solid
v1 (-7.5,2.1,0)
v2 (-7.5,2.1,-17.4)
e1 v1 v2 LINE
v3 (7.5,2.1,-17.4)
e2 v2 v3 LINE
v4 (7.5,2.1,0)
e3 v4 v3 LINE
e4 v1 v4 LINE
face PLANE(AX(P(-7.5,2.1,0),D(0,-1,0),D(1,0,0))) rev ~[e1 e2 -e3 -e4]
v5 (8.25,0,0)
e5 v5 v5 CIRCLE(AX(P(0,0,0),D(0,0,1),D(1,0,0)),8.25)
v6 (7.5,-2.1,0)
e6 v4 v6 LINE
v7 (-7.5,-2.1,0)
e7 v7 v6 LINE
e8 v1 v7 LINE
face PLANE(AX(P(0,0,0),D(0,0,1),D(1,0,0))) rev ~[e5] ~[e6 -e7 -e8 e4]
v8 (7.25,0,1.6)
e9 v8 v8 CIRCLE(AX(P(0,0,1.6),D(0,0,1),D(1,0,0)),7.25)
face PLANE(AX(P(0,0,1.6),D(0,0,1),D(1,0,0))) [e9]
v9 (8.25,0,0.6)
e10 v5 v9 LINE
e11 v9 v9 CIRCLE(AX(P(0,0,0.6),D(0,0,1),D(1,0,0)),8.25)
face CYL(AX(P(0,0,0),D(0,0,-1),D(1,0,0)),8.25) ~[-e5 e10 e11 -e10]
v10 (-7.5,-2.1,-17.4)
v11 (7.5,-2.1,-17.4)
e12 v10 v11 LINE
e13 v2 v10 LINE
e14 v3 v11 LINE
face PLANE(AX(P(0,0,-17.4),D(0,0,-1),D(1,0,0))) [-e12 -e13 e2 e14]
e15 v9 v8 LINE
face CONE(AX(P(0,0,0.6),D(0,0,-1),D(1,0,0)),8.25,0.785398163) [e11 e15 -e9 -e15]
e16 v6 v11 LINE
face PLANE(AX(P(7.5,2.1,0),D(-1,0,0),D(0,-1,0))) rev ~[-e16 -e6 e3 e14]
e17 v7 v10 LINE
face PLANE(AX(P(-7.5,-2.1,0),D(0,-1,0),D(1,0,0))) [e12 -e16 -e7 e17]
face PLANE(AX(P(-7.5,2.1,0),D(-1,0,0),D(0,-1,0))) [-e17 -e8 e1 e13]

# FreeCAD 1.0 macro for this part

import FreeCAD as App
import Part
import Sketcher


def edges_at(feature, points):
    """Names of the edges that pass closest to the given points."""
    edges = feature.Shape.Edges
    near = lambda p: min(range(len(edges)), key=lambda i: edges[i].distToShape(Part.Vertex(*p))[0])
    return sorted({f"Edge{near(p) + 1}" for p in points})

doc = App.newDocument("Part")
body = doc.addObject("PartDesign::Body", "Body")

# Sketch on XY plane
sketch1 = body.newObject("Sketcher::SketchObject", "Sketch")
sketch1.AttachmentSupport = (doc.getObject("XY_Plane"), [""])
sketch1.MapMode = "FlatFace"
sketch1.addGeometry(Part.Circle(App.Vector(0, 0, 0), App.Vector(0, 0, 1), 8.25), False)
sketch1.addConstraint([
    Sketcher.Constraint("Coincident", 0, 3, -1, 1),
    Sketcher.Constraint("Diameter", 0, 16.5),
])
pad1 = body.newObject("PartDesign::Pad", "Pad")
pad1.Profile = sketch1
pad1.Length = 1.6
doc.recompute()

chamfer = body.newObject("PartDesign::Chamfer", "Chamfer")
chamfer.Base = (pad1, edges_at(pad1, [(-8.25, 0, 1.6)]))
chamfer.Size = 1
body2 = doc.addObject("PartDesign::Body", "Body001")

# Sketch on XY plane
sketch2 = body2.newObject("Sketcher::SketchObject", "Sketch001")
sketch2.AttachmentSupport = (doc.getObject("XY_Plane001"), [""])
sketch2.MapMode = "FlatFace"
sketch2.addGeometry([
    Part.LineSegment(App.Vector(-7.5, -2.1, 0), App.Vector(-7.5, 2.1, 0)),
    Part.LineSegment(App.Vector(-7.5, 2.1, 0), App.Vector(7.5, 2.1, 0)),
    Part.LineSegment(App.Vector(7.5, 2.1, 0), App.Vector(7.5, -2.1, 0)),
    Part.LineSegment(App.Vector(7.5, -2.1, 0), App.Vector(-7.5, -2.1, 0)),
], False)
sketch2.addConstraint([
    Sketcher.Constraint("Coincident", 0, 2, 1, 1),
    Sketcher.Constraint("Coincident", 1, 2, 2, 1),
    Sketcher.Constraint("Coincident", 2, 2, 3, 1),
    Sketcher.Constraint("Coincident", 3, 2, 0, 1),
    Sketcher.Constraint("Vertical", 0),
    Sketcher.Constraint("Horizontal", 1),
    Sketcher.Constraint("Vertical", 2),
    Sketcher.Constraint("Horizontal", 3),
    Sketcher.Constraint("Symmetric", 0, 2, 2, 2, -1, 1),
    Sketcher.Constraint("DistanceX", 1, 1, 1, 2, 15.0),
    Sketcher.Constraint("DistanceY", 0, 1, 0, 2, 4.2),
])
pad2 = body2.newObject("PartDesign::Pad", "Pad001")
pad2.Profile = sketch2
pad2.Length = 17.4
pad2.Reversed = True
doc.recompute()

boolean = body2.newObject("PartDesign::Boolean", "Boolean")
boolean.Type = "Fuse"
boolean.addObjects([body])

doc.recompute()
